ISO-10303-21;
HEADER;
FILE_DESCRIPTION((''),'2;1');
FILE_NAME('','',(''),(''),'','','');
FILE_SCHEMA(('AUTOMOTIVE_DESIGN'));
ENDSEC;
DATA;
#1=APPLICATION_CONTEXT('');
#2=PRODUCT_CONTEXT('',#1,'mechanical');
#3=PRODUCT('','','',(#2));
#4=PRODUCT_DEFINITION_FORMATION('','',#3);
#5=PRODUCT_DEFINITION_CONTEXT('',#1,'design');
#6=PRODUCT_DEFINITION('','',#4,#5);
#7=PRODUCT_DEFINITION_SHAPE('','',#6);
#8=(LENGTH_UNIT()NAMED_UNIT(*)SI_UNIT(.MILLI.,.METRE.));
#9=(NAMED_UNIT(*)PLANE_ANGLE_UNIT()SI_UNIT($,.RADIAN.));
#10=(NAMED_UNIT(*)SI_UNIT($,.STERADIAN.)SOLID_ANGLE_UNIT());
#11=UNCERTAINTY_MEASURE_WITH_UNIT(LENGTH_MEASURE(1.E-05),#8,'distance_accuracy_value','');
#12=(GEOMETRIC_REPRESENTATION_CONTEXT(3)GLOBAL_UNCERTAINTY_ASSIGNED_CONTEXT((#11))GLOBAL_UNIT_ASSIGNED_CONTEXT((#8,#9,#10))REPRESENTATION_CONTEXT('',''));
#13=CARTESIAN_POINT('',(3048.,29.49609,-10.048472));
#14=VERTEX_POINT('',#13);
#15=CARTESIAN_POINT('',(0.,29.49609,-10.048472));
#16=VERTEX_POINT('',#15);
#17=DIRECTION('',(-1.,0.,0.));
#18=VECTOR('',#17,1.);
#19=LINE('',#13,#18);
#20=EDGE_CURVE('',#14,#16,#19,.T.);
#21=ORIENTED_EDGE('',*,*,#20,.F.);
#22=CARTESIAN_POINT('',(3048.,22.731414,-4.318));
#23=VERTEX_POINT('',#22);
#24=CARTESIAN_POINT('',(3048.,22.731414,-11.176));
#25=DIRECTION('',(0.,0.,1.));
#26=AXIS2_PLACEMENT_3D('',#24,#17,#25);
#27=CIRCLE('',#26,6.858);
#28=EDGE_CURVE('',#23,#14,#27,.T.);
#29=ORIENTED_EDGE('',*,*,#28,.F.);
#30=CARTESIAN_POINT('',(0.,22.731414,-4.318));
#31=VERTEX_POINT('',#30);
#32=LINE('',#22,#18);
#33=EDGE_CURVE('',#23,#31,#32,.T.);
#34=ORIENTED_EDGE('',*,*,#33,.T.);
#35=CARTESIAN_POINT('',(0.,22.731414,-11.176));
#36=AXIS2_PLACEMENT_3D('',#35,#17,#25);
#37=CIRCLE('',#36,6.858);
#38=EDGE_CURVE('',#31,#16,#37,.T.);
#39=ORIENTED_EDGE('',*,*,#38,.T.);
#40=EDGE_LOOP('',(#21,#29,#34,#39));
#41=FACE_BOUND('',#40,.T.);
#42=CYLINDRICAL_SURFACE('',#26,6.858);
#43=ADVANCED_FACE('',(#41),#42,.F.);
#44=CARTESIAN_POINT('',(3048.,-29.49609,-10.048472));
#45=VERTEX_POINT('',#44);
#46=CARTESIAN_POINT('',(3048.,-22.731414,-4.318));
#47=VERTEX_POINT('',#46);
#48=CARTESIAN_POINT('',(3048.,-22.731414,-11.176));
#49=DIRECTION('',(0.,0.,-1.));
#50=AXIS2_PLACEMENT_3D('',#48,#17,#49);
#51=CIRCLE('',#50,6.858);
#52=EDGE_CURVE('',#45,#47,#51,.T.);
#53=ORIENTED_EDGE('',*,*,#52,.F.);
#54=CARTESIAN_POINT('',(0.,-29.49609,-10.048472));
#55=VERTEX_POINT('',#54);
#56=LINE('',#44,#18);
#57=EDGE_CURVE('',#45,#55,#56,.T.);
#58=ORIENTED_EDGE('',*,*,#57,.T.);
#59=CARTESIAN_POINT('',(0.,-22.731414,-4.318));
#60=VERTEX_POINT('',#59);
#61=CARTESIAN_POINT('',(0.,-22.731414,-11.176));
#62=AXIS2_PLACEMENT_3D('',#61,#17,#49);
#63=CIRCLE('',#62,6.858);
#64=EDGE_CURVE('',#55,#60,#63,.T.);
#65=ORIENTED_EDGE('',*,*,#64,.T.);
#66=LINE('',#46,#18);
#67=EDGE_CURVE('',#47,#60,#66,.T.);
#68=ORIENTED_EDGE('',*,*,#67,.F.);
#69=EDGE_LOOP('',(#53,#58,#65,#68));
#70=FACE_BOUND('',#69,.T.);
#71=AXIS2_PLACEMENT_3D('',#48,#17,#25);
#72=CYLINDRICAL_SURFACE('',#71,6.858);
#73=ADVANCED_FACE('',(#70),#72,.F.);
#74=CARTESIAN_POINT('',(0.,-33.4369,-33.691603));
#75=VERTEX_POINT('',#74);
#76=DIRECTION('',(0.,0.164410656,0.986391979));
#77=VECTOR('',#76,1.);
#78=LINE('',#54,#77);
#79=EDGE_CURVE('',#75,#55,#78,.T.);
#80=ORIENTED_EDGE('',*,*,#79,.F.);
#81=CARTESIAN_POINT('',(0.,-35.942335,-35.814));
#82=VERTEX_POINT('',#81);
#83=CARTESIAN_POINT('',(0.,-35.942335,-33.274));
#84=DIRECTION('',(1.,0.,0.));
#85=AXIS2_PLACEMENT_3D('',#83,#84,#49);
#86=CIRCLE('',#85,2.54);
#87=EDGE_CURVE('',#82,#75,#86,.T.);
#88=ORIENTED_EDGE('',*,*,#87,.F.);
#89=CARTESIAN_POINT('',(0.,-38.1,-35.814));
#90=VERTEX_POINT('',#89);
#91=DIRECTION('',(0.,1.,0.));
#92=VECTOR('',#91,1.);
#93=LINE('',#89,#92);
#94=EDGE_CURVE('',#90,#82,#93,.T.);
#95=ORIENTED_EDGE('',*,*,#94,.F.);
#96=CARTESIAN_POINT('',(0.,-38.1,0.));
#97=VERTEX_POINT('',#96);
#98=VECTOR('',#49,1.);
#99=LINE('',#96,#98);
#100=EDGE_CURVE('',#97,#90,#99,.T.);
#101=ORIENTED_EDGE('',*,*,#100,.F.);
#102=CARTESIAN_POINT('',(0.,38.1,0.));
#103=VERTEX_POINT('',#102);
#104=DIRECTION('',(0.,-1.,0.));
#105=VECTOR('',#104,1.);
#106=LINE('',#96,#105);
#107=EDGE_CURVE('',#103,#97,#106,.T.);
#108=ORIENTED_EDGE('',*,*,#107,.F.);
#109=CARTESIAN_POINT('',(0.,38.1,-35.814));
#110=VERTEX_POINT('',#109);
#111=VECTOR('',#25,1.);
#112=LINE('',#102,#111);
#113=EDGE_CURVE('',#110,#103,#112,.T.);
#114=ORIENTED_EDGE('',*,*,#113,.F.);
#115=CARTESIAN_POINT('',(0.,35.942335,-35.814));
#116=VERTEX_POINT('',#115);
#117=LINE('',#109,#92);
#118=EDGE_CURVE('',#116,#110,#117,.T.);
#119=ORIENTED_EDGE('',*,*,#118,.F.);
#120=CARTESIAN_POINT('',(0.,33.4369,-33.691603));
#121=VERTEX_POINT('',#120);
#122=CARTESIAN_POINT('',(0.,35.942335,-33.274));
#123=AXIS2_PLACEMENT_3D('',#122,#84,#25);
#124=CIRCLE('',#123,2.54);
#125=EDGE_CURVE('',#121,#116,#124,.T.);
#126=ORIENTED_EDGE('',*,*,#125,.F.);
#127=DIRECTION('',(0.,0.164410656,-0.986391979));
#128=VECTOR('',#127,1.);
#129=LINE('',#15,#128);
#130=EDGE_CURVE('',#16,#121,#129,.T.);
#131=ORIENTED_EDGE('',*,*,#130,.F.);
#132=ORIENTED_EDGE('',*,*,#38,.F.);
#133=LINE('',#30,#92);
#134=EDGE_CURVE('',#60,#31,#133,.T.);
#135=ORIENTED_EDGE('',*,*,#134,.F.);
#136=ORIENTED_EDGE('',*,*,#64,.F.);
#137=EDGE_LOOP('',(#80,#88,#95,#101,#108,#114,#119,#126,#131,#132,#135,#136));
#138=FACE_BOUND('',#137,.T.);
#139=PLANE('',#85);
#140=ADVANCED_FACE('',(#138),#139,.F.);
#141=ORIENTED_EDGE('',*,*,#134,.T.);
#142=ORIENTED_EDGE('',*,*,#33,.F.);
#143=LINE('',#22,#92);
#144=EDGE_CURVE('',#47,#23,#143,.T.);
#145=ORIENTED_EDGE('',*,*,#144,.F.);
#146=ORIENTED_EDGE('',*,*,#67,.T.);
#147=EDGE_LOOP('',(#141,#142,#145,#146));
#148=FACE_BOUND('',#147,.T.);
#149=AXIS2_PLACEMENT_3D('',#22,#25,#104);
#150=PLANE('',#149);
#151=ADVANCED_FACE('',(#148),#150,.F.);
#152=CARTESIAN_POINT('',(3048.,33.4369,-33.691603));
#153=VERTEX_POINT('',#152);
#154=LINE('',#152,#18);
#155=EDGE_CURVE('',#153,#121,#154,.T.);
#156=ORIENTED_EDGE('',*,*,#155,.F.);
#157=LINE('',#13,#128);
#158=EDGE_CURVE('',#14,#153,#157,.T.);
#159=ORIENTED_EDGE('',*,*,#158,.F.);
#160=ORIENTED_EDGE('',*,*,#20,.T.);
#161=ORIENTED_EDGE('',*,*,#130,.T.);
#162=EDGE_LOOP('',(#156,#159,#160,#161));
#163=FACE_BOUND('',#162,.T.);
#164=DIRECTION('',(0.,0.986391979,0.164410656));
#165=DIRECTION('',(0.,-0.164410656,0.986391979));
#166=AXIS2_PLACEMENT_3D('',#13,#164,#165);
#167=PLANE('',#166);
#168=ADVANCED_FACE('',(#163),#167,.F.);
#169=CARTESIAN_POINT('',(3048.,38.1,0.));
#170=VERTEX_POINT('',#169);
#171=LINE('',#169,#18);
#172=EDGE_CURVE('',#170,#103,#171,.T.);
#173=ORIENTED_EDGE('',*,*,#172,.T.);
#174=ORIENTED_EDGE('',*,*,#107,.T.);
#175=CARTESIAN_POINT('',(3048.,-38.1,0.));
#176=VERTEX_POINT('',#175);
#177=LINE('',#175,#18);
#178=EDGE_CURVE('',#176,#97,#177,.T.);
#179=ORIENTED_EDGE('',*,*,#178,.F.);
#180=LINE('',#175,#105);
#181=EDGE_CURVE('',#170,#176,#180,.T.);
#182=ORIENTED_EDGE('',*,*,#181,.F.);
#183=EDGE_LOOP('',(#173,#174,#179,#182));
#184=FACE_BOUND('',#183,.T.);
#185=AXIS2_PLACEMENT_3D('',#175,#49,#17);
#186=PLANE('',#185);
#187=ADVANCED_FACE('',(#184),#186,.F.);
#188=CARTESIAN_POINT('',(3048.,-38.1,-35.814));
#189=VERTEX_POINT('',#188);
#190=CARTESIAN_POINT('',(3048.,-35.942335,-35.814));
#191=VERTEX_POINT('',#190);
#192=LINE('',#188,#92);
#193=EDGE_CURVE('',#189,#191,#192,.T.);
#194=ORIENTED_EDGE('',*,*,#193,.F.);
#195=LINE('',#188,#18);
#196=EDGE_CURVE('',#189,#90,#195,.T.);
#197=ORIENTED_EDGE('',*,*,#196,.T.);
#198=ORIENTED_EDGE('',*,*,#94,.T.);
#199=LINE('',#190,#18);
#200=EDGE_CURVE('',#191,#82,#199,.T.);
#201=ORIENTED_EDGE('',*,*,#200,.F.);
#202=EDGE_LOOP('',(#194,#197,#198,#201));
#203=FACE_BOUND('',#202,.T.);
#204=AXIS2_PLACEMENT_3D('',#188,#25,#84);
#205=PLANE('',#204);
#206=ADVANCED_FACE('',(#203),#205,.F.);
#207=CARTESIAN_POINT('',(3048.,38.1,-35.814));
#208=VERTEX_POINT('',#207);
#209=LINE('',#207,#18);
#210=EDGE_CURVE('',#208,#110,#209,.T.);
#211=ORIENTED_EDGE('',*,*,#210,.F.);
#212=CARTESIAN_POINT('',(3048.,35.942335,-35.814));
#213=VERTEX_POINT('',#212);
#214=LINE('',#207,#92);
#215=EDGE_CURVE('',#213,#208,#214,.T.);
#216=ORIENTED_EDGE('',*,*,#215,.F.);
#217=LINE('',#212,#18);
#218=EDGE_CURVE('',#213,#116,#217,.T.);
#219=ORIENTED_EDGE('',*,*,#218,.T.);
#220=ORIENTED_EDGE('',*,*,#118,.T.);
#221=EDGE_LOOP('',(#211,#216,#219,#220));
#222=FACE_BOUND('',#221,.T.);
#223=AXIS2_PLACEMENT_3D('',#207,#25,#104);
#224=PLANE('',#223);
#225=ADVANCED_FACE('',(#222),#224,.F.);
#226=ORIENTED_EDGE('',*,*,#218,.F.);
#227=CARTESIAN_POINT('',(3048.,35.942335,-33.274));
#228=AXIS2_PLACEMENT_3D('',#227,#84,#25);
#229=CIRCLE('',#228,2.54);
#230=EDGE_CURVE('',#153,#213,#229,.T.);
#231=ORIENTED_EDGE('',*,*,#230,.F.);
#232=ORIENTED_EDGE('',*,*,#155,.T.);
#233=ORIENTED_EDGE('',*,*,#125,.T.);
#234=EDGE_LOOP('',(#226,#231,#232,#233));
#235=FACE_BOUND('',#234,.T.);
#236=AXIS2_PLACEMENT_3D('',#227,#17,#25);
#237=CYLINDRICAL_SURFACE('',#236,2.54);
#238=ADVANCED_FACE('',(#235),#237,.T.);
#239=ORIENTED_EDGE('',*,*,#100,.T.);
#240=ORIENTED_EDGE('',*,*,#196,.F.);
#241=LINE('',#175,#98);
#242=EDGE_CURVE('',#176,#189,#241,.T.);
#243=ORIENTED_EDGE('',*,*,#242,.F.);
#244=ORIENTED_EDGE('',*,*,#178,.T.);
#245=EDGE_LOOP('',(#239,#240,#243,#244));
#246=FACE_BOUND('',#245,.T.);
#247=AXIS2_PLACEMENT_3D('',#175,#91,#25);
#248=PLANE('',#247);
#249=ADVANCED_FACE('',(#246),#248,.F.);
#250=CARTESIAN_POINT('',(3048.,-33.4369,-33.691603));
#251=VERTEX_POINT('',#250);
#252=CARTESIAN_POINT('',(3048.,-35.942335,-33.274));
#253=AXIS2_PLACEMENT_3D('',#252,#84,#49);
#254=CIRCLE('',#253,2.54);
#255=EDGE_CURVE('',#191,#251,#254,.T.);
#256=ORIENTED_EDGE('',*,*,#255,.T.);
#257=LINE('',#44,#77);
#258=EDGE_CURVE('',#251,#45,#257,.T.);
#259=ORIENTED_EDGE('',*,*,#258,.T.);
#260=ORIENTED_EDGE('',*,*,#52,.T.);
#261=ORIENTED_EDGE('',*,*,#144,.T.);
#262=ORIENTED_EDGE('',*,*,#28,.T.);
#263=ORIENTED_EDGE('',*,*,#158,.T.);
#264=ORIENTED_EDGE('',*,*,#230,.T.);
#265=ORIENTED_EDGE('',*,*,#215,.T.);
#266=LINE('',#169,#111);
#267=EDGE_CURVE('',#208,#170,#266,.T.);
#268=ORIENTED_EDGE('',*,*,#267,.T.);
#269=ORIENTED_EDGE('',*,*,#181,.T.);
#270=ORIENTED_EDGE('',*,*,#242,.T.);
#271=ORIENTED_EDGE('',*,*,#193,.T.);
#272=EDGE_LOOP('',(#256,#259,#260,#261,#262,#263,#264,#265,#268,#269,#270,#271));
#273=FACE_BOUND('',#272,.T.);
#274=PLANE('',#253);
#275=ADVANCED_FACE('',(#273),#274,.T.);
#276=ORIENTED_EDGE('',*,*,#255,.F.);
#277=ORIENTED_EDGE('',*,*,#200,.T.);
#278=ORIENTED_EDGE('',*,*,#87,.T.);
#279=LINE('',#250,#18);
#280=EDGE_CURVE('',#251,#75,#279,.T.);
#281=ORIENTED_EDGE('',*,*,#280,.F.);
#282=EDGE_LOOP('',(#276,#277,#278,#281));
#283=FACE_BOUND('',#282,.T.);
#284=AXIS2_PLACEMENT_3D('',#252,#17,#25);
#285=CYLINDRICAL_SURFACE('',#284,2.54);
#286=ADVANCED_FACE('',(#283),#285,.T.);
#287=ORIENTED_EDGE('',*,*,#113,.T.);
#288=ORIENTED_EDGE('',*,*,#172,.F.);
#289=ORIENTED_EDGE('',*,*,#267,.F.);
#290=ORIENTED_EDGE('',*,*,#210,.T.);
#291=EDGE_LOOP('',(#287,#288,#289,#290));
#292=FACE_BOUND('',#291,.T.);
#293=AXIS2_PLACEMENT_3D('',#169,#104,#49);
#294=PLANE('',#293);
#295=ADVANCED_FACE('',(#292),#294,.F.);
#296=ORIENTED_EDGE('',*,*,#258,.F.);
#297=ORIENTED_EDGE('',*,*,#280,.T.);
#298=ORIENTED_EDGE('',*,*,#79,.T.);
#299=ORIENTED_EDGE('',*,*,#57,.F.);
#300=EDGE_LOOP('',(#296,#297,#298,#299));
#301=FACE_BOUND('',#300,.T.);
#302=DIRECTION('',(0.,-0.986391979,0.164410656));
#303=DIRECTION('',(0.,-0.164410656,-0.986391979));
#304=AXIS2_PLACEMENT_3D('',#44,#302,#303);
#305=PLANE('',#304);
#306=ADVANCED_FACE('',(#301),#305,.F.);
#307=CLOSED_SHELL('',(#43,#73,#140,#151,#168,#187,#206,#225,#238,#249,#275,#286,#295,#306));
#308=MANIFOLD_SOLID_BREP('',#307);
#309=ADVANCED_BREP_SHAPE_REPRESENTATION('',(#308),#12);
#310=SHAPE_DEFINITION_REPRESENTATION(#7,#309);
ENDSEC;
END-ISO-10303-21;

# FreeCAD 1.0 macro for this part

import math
import FreeCAD as App
import Part
import Sketcher

V = App.Vector
Q = App.Units.Quantity

doc = App.newDocument("Part")
body = doc.addObject("PartDesign::Body", "Body")

# Sketch on YZ plane
sketch1 = doc.addObject("Sketcher::SketchObject", "Sketch")
body.addObject(sketch1)
sketch1.AttachmentSupport = (doc.YZ_Plane, [""])
sketch1.MapMode = "FlatFace"
sketch1.addGeometry([
    Part.LineSegment(V(38.1, 0, 0), V(-38.1, 0, 0)),  # 0
    Part.LineSegment(V(-38.1, 0, 0), V(-38.1, -35.814, 0)),  # 1
    Part.LineSegment(V(-38.1, -35.814, 0), V(-35.942335, -35.814, 0)),  # 2
    Part.ArcOfCircle(Part.Circle(V(-35.942335, -33.274, 0), V(0, 0, 1), 2.54), math.radians(-90), math.radians(-9.463)),  # 3
    Part.LineSegment(V(-33.4369, -33.691603, 0), V(-29.49609, -10.048472, 0)),  # 4
    Part.ArcOfCircle(Part.Circle(V(-22.731414, -11.176, 0), V(0, 0, 1), 6.858), math.radians(90), math.radians(170.537)),  # 5
    Part.LineSegment(V(-22.731414, -4.318, 0), V(22.731414, -4.318, 0)),  # 6
    Part.ArcOfCircle(Part.Circle(V(22.731414, -11.176, 0), V(0, 0, 1), 6.858), math.radians(9.463), math.radians(90)),  # 7
    Part.LineSegment(V(29.49609, -10.048472, 0), V(33.4369, -33.691603, 0)),  # 8
    Part.ArcOfCircle(Part.Circle(V(35.942335, -33.274, 0), V(0, 0, 1), 2.54), math.radians(-170.537), math.radians(-90)),  # 9
    Part.LineSegment(V(35.942335, -35.814, 0), V(38.1, -35.814, 0)),  # 10
    Part.LineSegment(V(38.1, -35.814, 0), V(38.1, 0, 0)),  # 11
], False)
sketch1.addConstraint([
    Sketcher.Constraint("Coincident", 0, 2, 1, 1),
    Sketcher.Constraint("Coincident", 1, 2, 2, 1),
    Sketcher.Constraint("Coincident", 2, 2, 3, 1),
    Sketcher.Constraint("Coincident", 3, 2, 4, 1),
    Sketcher.Constraint("Coincident", 4, 2, 5, 2),
    Sketcher.Constraint("Coincident", 5, 1, 6, 1),
    Sketcher.Constraint("Coincident", 6, 2, 7, 2),
    Sketcher.Constraint("Coincident", 7, 1, 8, 1),
    Sketcher.Constraint("Coincident", 8, 2, 9, 1),
    Sketcher.Constraint("Coincident", 9, 2, 10, 1),
    Sketcher.Constraint("Coincident", 10, 2, 11, 1),
    Sketcher.Constraint("Coincident", 11, 2, 0, 1),
    Sketcher.Constraint("Horizontal", 0),
    Sketcher.Constraint("Vertical", 1),
    Sketcher.Constraint("Horizontal", 2),
    Sketcher.Constraint("Horizontal", 6),
    Sketcher.Constraint("Horizontal", 10),
    Sketcher.Constraint("Vertical", 11),
    Sketcher.Constraint("PointOnObject", 0, 2, -1),
    Sketcher.Constraint("Radius", 3, Q("0.1 in")),
    Sketcher.Constraint("Radius", 9, Q("0.1 in")),
    Sketcher.Constraint("DistanceX", 0, 2, 0, 1, Q("3 in")),
    Sketcher.Constraint("Radius", 5, Q("0.27 in")),
    Sketcher.Constraint("Radius", 7, Q("0.27 in")),
    Sketcher.Constraint("DistanceY", 1, 2, 1, 1, Q("1.41 in")),
    Sketcher.Constraint("DistanceY", 11, 1, 11, 2, Q("1.41 in")),
    Sketcher.Constraint("DistanceX", 0, 2, -1, 1, Q("1.5 in")),
    Sketcher.Constraint("DistanceY", 5, 3, -1, 1, Q("0.44 in")),
    Sketcher.Constraint("DistanceX", 3, 2, -1, 1, Q("33.4369 mm")),
    Sketcher.Constraint("DistanceX", -1, 1, 8, 2, Q("33.4369 mm")),
    Sketcher.Constraint("DistanceX", 2, 1, 2, 2, Q("2.157665 mm")),
    Sketcher.Constraint("DistanceX", 6, 1, 6, 2, Q("45.462828 mm")),
    Sketcher.Constraint("DistanceX", 10, 1, 10, 2, Q("2.157665 mm")),
    Sketcher.Constraint("DistanceX", 4, 2, -1, 1, Q("29.49609 mm")),
    Sketcher.Constraint("DistanceY", 4, 2, -1, 1, Q("10.048472 mm")),
    Sketcher.Constraint("DistanceX", -1, 1, 7, 1, Q("29.49609 mm")),
    Sketcher.Constraint("DistanceY", 7, 1, -1, 1, Q("10.048472 mm")),
    Sketcher.Constraint("DistanceX", 3, 3, 5, 3, Q("13.210921 mm")),
    Sketcher.Constraint("DistanceX", 7, 3, 9, 3, Q("13.210921 mm")),
    Sketcher.Constraint("DistanceX", 3, 3, 5, 1, Q("13.210921 mm")),
])
pad1 = doc.addObject("PartDesign::Pad", "Pad")
body.addObject(pad1)
pad1.Profile = sketch1
pad1.Length = Q("120 in")

doc.recompute()
